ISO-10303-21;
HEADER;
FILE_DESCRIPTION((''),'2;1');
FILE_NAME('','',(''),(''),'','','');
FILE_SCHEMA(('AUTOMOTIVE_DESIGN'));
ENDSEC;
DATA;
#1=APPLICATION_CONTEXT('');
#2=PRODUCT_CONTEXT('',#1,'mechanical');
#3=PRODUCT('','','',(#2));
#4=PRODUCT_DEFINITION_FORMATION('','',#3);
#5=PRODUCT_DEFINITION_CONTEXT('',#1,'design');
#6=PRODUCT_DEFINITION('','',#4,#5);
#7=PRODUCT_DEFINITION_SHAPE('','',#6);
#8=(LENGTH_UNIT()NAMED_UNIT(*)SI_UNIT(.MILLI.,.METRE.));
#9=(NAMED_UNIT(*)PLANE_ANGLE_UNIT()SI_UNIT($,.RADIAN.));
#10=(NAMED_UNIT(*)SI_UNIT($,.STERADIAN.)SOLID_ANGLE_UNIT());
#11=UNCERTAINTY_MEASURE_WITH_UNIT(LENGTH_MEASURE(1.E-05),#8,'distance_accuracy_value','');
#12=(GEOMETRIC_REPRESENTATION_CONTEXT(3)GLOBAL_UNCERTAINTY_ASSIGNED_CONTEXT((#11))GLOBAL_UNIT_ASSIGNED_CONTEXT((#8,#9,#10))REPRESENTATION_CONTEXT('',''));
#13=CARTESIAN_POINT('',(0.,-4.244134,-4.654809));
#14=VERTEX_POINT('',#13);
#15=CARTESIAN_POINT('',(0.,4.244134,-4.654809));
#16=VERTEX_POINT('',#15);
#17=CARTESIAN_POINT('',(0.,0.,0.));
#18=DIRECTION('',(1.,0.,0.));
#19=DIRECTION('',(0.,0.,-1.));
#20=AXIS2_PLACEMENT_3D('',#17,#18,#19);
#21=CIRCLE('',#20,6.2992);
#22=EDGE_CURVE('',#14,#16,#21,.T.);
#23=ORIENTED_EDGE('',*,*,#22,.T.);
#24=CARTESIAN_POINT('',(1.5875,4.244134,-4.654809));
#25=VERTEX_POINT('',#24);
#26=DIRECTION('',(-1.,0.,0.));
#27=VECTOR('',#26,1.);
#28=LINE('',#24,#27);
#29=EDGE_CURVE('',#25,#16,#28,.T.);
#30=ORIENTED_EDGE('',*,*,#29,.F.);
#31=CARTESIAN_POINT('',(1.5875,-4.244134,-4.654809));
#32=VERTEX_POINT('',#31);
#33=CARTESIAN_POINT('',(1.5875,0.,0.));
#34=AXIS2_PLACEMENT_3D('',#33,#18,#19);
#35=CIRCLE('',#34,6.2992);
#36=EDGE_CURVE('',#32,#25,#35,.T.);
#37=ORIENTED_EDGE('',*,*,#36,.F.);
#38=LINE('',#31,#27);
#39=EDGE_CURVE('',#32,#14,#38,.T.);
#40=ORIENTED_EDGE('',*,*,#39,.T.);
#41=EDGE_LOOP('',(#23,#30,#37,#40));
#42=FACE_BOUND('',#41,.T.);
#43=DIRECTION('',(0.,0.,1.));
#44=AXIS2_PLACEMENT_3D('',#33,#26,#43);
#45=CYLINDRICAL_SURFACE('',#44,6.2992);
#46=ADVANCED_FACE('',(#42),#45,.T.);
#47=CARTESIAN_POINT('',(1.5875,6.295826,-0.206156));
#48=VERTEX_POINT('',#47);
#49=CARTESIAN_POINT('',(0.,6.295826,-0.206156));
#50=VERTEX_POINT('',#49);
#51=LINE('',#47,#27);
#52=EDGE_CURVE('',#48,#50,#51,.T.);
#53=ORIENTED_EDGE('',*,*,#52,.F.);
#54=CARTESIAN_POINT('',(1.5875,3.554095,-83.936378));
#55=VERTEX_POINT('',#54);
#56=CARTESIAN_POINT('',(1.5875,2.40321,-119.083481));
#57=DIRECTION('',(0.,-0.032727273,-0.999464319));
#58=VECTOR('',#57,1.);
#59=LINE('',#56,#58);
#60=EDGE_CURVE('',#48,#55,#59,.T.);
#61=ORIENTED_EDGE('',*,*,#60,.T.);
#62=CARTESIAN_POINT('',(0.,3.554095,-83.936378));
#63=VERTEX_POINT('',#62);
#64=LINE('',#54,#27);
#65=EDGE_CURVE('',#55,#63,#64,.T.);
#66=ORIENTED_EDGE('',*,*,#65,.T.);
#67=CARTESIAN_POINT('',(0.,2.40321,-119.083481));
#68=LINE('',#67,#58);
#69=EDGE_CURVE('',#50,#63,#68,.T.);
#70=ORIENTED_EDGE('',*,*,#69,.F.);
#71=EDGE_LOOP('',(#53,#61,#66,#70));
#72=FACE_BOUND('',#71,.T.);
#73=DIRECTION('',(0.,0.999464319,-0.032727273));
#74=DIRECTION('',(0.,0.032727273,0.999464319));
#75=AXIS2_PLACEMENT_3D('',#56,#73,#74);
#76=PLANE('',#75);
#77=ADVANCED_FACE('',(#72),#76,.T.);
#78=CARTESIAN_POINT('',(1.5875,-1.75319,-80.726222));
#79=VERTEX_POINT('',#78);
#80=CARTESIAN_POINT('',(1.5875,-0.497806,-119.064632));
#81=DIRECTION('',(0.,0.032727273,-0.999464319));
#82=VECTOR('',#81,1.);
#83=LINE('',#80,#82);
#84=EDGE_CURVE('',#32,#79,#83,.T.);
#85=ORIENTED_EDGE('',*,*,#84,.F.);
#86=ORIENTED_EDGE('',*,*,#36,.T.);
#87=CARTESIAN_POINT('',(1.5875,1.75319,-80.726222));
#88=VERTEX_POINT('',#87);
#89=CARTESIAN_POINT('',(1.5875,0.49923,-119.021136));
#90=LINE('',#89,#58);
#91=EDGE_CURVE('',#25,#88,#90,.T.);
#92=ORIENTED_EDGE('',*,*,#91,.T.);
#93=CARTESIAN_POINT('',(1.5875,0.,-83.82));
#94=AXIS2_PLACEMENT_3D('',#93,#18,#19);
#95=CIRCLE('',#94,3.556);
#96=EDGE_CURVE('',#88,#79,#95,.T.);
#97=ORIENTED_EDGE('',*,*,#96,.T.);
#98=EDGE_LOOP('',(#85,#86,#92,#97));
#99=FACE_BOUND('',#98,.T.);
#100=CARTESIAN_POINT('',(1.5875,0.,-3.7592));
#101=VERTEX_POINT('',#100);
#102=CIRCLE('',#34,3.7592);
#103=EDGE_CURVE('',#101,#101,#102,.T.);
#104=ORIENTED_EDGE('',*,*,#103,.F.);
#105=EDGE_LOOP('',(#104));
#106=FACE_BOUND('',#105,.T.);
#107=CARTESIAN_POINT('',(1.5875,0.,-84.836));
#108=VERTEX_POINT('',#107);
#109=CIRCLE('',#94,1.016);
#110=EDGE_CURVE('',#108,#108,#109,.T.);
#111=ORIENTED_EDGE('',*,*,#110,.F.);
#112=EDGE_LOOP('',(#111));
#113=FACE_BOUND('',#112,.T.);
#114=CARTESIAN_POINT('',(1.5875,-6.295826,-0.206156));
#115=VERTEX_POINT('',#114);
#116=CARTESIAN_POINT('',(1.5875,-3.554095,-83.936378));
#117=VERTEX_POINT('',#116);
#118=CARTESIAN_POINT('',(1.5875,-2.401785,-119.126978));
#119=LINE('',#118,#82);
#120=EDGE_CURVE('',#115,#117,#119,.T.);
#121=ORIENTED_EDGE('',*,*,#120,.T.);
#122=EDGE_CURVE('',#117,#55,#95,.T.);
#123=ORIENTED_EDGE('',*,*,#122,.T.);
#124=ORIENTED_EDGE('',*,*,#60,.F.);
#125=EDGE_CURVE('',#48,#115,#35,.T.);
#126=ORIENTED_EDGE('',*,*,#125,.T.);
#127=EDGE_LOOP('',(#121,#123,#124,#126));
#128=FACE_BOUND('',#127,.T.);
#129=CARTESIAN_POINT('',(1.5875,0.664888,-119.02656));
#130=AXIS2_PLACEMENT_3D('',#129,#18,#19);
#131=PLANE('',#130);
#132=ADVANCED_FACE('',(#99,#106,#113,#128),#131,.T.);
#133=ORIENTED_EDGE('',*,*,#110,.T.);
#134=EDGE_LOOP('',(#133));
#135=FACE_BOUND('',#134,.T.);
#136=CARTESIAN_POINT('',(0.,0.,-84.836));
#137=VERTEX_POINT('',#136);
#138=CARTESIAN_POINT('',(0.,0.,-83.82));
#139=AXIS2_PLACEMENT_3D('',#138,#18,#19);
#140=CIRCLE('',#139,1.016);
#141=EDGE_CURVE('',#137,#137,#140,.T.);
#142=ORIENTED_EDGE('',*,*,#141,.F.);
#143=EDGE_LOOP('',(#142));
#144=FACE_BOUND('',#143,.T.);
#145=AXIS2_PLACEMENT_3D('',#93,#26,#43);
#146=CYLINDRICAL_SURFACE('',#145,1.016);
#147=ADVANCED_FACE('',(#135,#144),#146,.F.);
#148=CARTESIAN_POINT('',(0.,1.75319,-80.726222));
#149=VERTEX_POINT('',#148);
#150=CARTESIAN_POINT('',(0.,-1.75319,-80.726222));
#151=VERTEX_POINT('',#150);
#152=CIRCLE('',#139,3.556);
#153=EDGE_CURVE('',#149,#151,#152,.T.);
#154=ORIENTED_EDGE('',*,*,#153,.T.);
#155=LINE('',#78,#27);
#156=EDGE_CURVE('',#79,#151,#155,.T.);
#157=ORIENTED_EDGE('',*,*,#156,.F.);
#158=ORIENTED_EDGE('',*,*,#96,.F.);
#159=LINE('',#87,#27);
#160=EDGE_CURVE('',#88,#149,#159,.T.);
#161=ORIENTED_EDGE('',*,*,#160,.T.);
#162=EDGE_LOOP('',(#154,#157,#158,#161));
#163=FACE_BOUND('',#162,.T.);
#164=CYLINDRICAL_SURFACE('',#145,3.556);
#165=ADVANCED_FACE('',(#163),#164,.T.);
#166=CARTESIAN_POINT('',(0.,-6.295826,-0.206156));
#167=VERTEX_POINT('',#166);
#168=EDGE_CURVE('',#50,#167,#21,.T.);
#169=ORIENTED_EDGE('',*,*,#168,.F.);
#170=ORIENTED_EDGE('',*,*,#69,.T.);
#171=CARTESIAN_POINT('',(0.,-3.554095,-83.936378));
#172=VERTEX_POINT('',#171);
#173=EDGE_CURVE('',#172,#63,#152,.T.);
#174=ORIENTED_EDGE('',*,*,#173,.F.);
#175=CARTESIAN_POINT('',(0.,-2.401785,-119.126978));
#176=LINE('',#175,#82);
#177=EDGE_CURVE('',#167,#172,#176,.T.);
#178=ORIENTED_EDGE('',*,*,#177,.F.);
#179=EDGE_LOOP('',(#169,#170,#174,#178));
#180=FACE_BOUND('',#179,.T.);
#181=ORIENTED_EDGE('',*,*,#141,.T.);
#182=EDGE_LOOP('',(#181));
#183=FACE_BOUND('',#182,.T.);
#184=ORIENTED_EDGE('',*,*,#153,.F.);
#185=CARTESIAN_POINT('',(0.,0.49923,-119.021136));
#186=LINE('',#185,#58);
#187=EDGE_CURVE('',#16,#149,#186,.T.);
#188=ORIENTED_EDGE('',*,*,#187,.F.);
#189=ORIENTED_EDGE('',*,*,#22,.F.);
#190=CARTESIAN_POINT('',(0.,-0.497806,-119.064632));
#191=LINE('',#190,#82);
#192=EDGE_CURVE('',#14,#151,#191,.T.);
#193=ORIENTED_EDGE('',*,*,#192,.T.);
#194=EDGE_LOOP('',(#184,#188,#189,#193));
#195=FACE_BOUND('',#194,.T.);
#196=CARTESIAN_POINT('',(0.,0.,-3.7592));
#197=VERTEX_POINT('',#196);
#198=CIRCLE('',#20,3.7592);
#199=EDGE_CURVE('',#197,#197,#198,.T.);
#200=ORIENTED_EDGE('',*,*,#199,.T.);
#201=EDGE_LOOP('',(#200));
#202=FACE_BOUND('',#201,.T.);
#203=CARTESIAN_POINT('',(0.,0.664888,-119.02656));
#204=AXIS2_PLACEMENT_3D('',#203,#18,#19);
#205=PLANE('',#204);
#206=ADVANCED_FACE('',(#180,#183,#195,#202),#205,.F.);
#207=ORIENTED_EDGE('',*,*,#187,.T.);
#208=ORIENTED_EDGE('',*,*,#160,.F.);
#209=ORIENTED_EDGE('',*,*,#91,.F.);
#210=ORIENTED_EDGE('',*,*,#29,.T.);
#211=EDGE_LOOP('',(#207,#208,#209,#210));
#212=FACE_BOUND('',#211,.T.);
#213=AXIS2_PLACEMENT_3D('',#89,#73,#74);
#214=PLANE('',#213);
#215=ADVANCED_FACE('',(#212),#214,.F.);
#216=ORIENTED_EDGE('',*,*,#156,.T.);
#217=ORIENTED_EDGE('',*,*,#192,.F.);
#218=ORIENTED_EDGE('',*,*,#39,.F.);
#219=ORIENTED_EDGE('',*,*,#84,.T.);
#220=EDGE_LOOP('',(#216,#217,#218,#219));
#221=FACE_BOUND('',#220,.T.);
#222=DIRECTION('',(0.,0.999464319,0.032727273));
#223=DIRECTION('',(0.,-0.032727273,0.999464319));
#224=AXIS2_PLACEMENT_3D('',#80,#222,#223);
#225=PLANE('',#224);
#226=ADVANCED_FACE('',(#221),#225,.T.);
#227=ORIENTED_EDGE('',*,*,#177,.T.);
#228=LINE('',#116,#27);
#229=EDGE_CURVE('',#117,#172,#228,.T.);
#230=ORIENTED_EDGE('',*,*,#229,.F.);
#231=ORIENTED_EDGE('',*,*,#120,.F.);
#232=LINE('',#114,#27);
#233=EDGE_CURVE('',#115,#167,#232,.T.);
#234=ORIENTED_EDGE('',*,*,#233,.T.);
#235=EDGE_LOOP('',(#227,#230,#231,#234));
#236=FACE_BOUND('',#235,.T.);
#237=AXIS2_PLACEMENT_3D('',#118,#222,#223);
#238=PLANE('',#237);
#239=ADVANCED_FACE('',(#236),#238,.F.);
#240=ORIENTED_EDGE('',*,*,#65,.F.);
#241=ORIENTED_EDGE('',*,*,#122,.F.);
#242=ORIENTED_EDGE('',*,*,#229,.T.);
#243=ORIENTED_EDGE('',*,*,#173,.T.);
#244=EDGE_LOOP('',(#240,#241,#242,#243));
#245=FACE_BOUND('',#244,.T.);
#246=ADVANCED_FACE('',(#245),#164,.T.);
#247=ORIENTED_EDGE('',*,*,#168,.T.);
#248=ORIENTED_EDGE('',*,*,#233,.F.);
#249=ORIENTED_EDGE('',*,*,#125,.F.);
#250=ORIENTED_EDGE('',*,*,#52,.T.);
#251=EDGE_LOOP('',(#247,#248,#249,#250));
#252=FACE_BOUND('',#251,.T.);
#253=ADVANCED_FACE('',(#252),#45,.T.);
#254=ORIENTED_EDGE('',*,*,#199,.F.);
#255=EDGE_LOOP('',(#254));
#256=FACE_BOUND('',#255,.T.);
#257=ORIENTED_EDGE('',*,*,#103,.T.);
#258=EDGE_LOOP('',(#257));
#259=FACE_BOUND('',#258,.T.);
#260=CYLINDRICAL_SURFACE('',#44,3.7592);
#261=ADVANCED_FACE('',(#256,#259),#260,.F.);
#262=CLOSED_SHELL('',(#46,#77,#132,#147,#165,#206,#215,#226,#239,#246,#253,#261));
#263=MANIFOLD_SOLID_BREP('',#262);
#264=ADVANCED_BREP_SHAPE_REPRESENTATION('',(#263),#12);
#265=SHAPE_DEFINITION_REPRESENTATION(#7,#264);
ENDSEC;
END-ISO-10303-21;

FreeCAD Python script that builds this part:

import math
import FreeCAD as App
import Part
import Sketcher
Q = App.Units.Quantity

doc = App.newDocument("Part")
body = doc.addObject("PartDesign::Body", "Body")

# Sketch on YZ plane
sketch1 = doc.addObject("Sketcher::SketchObject", "Sketch")
body.addObject(sketch1)
sketch1.AttachmentSupport = (doc.YZ_Plane, [""])
sketch1.MapMode = "FlatFace"
sketch1.addGeometry(Part.LineSegment(App.Vector(3.6, -83.9, 0), App.Vector(6.3, -0.2, 0)), False)
sketch1.addGeometry(Part.ArcOfCircle(Part.Circle(App.Vector(0, 0, 0), App.Vector(0, 0, 1), 6.3), math.radians(-2), math.radians(182)), False)
sketch1.addGeometry(Part.LineSegment(App.Vector(-6.3, -0.2, 0), App.Vector(-3.6, -83.9, 0)), False)
sketch1.addGeometry(Part.ArcOfCircle(Part.Circle(App.Vector(0, -83.8, 0), App.Vector(0, 0, 1), 3.6), math.radians(-178), math.radians(-2)), False)
sketch1.addGeometry(Part.Circle(App.Vector(0, 0, 0), App.Vector(0, 0, 1), 3.8), False)
sketch1.addGeometry(Part.LineSegment(App.Vector(-1.8, -80.7, 0), App.Vector(-4.2, -4.7, 0)), False)
sketch1.addGeometry(Part.ArcOfCircle(Part.Circle(App.Vector(0, 0, 0), App.Vector(0, 0, 1), 6.3), math.radians(-132), math.radians(-48)), False)
sketch1.addGeometry(Part.LineSegment(App.Vector(4.2, -4.7, 0), App.Vector(1.8, -80.7, 0)), False)
sketch1.addGeometry(Part.ArcOfCircle(Part.Circle(App.Vector(0, -83.8, 0), App.Vector(0, 0, 1), 3.6), math.radians(60), math.radians(120)), False)
sketch1.addGeometry(Part.Circle(App.Vector(0, -83.8, 0), App.Vector(0, 0, 1), 1), False)
sketch1.addConstraint(Sketcher.Constraint("Tangent", 0, 2, 1, 1))
sketch1.addConstraint(Sketcher.Constraint("Tangent", 1, 2, 2, 1))
sketch1.addConstraint(Sketcher.Constraint("Tangent", 2, 2, 3, 1))
sketch1.addConstraint(Sketcher.Constraint("Tangent", 3, 2, 0, 1))
sketch1.addConstraint(Sketcher.Constraint("Coincident", 5, 2, 6, 1))
sketch1.addConstraint(Sketcher.Constraint("Coincident", 6, 2, 7, 1))
sketch1.addConstraint(Sketcher.Constraint("Coincident", 7, 2, 8, 1))
sketch1.addConstraint(Sketcher.Constraint("Coincident", 8, 2, 5, 1))
sketch1.addConstraint(Sketcher.Constraint("Coincident", 1, 3, -1, 1))
sketch1.addConstraint(Sketcher.Constraint("Coincident", 4, 3, -1, 1))
sketch1.addConstraint(Sketcher.Constraint("Coincident", 6, 3, -1, 1))
sketch1.addConstraint(Sketcher.Constraint("Coincident", 8, 3, 3, 3))
sketch1.addConstraint(Sketcher.Constraint("Coincident", 9, 3, 3, 3))
sketch1.addConstraint(Sketcher.Constraint("Equal", 1, 6))
sketch1.addConstraint(Sketcher.Constraint("Equal", 3, 8))
sketch1.addConstraint(Sketcher.Constraint("Symmetric", 7, 2, 8, 2, -2))
sketch1.addConstraint(Sketcher.Constraint("Parallel", 2, 5))
sketch1.addConstraint(Sketcher.Constraint("Parallel", 0, 7))
sketch1.addConstraint(Sketcher.Constraint("Diameter", 9, Q("0.08 in")))
sketch1.addConstraint(Sketcher.Constraint("Radius", 3, Q("0.14 in")))
sketch1.addConstraint(Sketcher.Constraint("Diameter", 4, Q("0.296 in")))
sketch1.addConstraint(Sketcher.Constraint("Radius", 1, Q("0.248 in")))
sketch1.addConstraint(Sketcher.Constraint("DistanceY", 3, 3, -1, 1, Q("3.3 in")))
sketch1.addConstraint(Sketcher.Constraint("DistanceY", 5, 2, -1, 1, Q("4.654809 mm")))
pad1 = doc.addObject("PartDesign::Pad", "Pad")
body.addObject(pad1)
pad1.Profile = sketch1
pad1.Length = Q("0.0625 in")

doc.recompute()
